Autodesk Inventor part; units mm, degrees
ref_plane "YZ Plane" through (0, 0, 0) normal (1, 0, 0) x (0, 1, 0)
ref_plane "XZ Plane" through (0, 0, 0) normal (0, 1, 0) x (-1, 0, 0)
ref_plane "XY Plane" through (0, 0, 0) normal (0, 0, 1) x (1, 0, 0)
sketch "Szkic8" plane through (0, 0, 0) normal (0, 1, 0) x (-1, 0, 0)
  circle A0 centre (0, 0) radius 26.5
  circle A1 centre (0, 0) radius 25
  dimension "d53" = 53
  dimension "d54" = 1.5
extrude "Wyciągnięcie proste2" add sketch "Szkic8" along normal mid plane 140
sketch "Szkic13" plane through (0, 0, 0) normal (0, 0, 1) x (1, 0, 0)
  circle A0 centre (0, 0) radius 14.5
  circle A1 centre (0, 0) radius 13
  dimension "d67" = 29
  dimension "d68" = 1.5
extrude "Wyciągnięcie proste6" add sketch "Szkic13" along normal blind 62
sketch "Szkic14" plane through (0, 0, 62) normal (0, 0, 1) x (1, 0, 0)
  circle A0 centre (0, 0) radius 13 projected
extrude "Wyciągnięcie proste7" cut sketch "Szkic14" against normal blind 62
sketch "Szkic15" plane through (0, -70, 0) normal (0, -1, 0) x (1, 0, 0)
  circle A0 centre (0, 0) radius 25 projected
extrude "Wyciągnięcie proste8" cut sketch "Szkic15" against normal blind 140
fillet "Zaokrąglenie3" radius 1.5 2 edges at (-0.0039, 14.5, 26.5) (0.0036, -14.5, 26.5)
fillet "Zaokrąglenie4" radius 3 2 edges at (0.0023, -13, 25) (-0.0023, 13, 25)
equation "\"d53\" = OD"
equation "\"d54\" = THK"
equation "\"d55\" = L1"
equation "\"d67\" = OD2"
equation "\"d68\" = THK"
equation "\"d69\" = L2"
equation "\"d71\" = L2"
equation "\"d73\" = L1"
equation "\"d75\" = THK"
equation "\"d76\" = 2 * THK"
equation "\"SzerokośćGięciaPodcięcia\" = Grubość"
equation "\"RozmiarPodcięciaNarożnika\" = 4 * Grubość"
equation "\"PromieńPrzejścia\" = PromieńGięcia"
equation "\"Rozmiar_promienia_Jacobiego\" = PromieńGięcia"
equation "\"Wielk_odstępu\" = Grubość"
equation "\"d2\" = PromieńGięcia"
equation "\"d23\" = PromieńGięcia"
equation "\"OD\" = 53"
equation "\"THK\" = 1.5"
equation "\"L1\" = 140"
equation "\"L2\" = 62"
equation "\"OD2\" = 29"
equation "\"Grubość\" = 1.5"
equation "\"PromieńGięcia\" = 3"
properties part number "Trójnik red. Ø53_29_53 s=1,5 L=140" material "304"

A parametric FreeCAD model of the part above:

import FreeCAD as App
import Part
import Sketcher
from FreeCAD import Vector
Q = App.Units.Quantity


def edges_at(feature, points):
    """Names of the edges that pass closest to the given points."""
    edges = feature.Shape.Edges
    near = lambda p: min(range(len(edges)), key=lambda i: edges[i].distToShape(Part.Vertex(*p))[0])
    return sorted({f"Edge{near(p) + 1}" for p in points})

doc = App.newDocument("Part")
body = doc.addObject("PartDesign::Body", "Body")

# Sketch on XZ plane
sketch1 = doc.addObject("Sketcher::SketchObject", "Sketch")
body.addObject(sketch1)
sketch1.AttachmentSupport = (doc.XZ_Plane, [""])
sketch1.MapMode = "FlatFace"
sketch1.addGeometry(Part.Circle(Vector(0, 0, 0), Vector(0, 0, 1), 26), False)
sketch1.addGeometry(Part.Circle(Vector(0, 0, 0), Vector(0, 0, 1), 25), False)
sketch1.addConstraint(Sketcher.Constraint("Coincident", 0, 3, -1, 1))
sketch1.addConstraint(Sketcher.Constraint("Coincident", 1, 3, -1, 1))
sketch1.addConstraint(Sketcher.Constraint("Diameter", 0, Q("53 mm")))
sketch1.addConstraint(Sketcher.Constraint("Diameter", 1, Q("50 mm")))
pad1 = doc.addObject("PartDesign::Pad", "Pad")
body.addObject(pad1)
pad1.Profile = sketch1
pad1.Length = 140
pad1.Midplane = True

# Sketch on XY plane
sketch2 = doc.addObject("Sketcher::SketchObject", "Sketch001")
body.addObject(sketch2)
sketch2.AttachmentSupport = (doc.XY_Plane, [""])
sketch2.MapMode = "FlatFace"
sketch2.addGeometry(Part.Circle(Vector(0, 0, 0), Vector(0, 0, 1), 14), False)
sketch2.addGeometry(Part.Circle(Vector(0, 0, 0), Vector(0, 0, 1), 13), False)
sketch2.addConstraint(Sketcher.Constraint("Coincident", 0, 3, -1, 1))
sketch2.addConstraint(Sketcher.Constraint("Coincident", 1, 3, -1, 1))
sketch2.addConstraint(Sketcher.Constraint("Diameter", 0, Q("29 mm")))
sketch2.addConstraint(Sketcher.Constraint("Diameter", 1, Q("26 mm")))
pad2 = doc.addObject("PartDesign::Pad", "Pad001")
body.addObject(pad2)
pad2.Profile = sketch2
pad2.Length = 62

# Sketch on XY plane
sketch3 = doc.addObject("Sketcher::SketchObject", "Sketch002")
body.addObject(sketch3)
sketch3.AttachmentSupport = (doc.XY_Plane, [""])
sketch3.MapMode = "FlatFace"
sketch3.AttachmentOffset = App.Placement(Vector(0, 0, 62), App.Rotation())
sketch3.addGeometry(Part.Circle(Vector(0, 0, 0), Vector(0, 0, 1), 13), False)
sketch3.addConstraint(Sketcher.Constraint("Coincident", 0, 3, -1, 1))
sketch3.addConstraint(Sketcher.Constraint("Diameter", 0, Q("26 mm")))
pocket1 = doc.addObject("PartDesign::Pocket", "Pocket")
body.addObject(pocket1)
pocket1.Profile = sketch3
pocket1.Length = 62

# Sketch on XZ plane
sketch4 = doc.addObject("Sketcher::SketchObject", "Sketch003")
body.addObject(sketch4)
sketch4.AttachmentSupport = (doc.XZ_Plane, [""])
sketch4.MapMode = "FlatFace"
sketch4.AttachmentOffset = App.Placement(Vector(0, 0, 70), App.Rotation())
sketch4.addGeometry(Part.Circle(Vector(0, 0, 0), Vector(0, 0, 1), 25), False)
sketch4.addConstraint(Sketcher.Constraint("Coincident", 0, 3, -1, 1))
sketch4.addConstraint(Sketcher.Constraint("Diameter", 0, Q("50 mm")))
pocket2 = doc.addObject("PartDesign::Pocket", "Pocket001")
body.addObject(pocket2)
pocket2.Profile = sketch4
pocket2.Length = 140
doc.recompute()

fillet = doc.addObject("PartDesign::Fillet", "Fillet")
body.addObject(fillet)
fillet.Base = (pocket2, edges_at(pocket2, [(-0.004, 14.5, 26.5), (0.004, -14.5, 26.5)]))
fillet.Radius = 1.5
doc.recompute()

fillet2 = doc.addObject("PartDesign::Fillet", "Fillet001")
body.addObject(fillet2)
fillet2.Base = (fillet, edges_at(fillet, [(0.002, -13, 25), (-0.002, 13, 25)]))
fillet2.Radius = 3

doc.recompute()
